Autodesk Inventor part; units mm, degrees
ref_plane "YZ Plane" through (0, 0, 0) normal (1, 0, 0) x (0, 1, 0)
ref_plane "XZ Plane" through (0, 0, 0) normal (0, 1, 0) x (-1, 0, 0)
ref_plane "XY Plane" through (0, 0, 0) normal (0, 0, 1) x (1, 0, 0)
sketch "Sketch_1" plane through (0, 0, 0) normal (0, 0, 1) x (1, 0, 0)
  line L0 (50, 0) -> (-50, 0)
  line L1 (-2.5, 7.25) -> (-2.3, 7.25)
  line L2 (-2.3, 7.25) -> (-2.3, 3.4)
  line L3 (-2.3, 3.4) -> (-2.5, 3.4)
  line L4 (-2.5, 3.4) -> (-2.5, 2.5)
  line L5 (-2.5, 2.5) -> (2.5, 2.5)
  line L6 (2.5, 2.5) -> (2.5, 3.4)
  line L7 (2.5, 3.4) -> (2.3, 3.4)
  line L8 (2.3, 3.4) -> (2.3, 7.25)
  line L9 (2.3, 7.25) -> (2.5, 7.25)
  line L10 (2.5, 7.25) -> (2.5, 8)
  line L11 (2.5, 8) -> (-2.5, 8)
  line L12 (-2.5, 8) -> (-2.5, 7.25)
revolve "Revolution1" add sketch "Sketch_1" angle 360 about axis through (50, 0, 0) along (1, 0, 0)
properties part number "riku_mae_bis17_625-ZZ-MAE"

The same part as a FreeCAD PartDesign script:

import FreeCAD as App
import Part
import Sketcher
from FreeCAD import Vector
Q = App.Units.Quantity

doc = App.newDocument("Part")
body = doc.addObject("PartDesign::Body", "Body")

sketch1 = body.newObject("Sketcher::SketchObject", "Sketch")
sketch1.AttachmentSupport = (doc.getObject("XY_Plane"), [""])
sketch1.MapMode = "FlatFace"
sketch1.addGeometry([
    Part.LineSegment(Vector(-2.5, 8, 0), Vector(-2.5, 7.25, 0)),
    Part.LineSegment(Vector(-2.5, 7.25, 0), Vector(-2.3, 7.25, 0)),
    Part.LineSegment(Vector(-2.3, 7.25, 0), Vector(-2.3, 3.4, 0)),
    Part.LineSegment(Vector(-2.3, 3.4, 0), Vector(-2.5, 3.4, 0)),
    Part.LineSegment(Vector(-2.5, 3.4, 0), Vector(-2.5, 2.5, 0)),
    Part.LineSegment(Vector(-2.5, 2.5, 0), Vector(2.5, 2.5, 0)),
    Part.LineSegment(Vector(2.5, 2.5, 0), Vector(2.5, 3.4, 0)),
    Part.LineSegment(Vector(2.5, 3.4, 0), Vector(2.3, 3.4, 0)),
    Part.LineSegment(Vector(2.3, 3.4, 0), Vector(2.3, 7.25, 0)),
    Part.LineSegment(Vector(2.3, 7.25, 0), Vector(2.5, 7.25, 0)),
    Part.LineSegment(Vector(2.5, 7.25, 0), Vector(2.5, 8, 0)),
    Part.LineSegment(Vector(2.5, 8, 0), Vector(-2.5, 8, 0)),
], False)
sketch1.addConstraint([
    Sketcher.Constraint("Coincident", 0, 2, 1, 1),
    Sketcher.Constraint("Coincident", 1, 2, 2, 1),
    Sketcher.Constraint("Coincident", 2, 2, 3, 1),
    Sketcher.Constraint("Coincident", 3, 2, 4, 1),
    Sketcher.Constraint("Coincident", 4, 2, 5, 1),
    Sketcher.Constraint("Coincident", 5, 2, 6, 1),
    Sketcher.Constraint("Coincident", 6, 2, 7, 1),
    Sketcher.Constraint("Coincident", 7, 2, 8, 1),
    Sketcher.Constraint("Coincident", 8, 2, 9, 1),
    Sketcher.Constraint("Coincident", 9, 2, 10, 1),
    Sketcher.Constraint("Coincident", 10, 2, 11, 1),
    Sketcher.Constraint("Coincident", 11, 2, 0, 1),
    Sketcher.Constraint("Vertical", 0),
    Sketcher.Constraint("Horizontal", 1),
    Sketcher.Constraint("Vertical", 2),
    Sketcher.Constraint("Horizontal", 3),
    Sketcher.Constraint("Vertical", 4),
    Sketcher.Constraint("Horizontal", 5),
    Sketcher.Constraint("Vertical", 6),
    Sketcher.Constraint("Horizontal", 7),
    Sketcher.Constraint("Vertical", 8),
    Sketcher.Constraint("Horizontal", 9),
    Sketcher.Constraint("Vertical", 10),
    Sketcher.Constraint("Horizontal", 11),
    Sketcher.Constraint("Symmetric", 3, 2, 6, 2, -2),
    Sketcher.Constraint("Symmetric", 1, 2, 8, 2, -2),
    Sketcher.Constraint("Vertical", 0, 2, 3, 2),
    Sketcher.Constraint("Vertical", 6, 2, 9, 2),
    Sketcher.Constraint("DistanceX", 5, 1, 5, 2, Q("5 mm")),
    Sketcher.Constraint("DistanceX", 1, 1, 1, 2, Q("0.2 mm")),
    Sketcher.Constraint("DistanceY", 4, 2, 4, 1, Q("0.9 mm")),
    Sketcher.Constraint("DistanceY", -1, 1, 10, 2, Q("8 mm")),
    Sketcher.Constraint("DistanceY", 0, 2, 0, 1, Q("0.75 mm")),
    Sketcher.Constraint("DistanceY", 2, 2, 2, 1, Q("3.85 mm")),
])
revolution = body.newObject("PartDesign::Revolution", "Revolution")
revolution.Profile = sketch1
revolution.ReferenceAxis = (sketch1, ["H_Axis"])
revolution.Angle = 360

doc.recompute()
